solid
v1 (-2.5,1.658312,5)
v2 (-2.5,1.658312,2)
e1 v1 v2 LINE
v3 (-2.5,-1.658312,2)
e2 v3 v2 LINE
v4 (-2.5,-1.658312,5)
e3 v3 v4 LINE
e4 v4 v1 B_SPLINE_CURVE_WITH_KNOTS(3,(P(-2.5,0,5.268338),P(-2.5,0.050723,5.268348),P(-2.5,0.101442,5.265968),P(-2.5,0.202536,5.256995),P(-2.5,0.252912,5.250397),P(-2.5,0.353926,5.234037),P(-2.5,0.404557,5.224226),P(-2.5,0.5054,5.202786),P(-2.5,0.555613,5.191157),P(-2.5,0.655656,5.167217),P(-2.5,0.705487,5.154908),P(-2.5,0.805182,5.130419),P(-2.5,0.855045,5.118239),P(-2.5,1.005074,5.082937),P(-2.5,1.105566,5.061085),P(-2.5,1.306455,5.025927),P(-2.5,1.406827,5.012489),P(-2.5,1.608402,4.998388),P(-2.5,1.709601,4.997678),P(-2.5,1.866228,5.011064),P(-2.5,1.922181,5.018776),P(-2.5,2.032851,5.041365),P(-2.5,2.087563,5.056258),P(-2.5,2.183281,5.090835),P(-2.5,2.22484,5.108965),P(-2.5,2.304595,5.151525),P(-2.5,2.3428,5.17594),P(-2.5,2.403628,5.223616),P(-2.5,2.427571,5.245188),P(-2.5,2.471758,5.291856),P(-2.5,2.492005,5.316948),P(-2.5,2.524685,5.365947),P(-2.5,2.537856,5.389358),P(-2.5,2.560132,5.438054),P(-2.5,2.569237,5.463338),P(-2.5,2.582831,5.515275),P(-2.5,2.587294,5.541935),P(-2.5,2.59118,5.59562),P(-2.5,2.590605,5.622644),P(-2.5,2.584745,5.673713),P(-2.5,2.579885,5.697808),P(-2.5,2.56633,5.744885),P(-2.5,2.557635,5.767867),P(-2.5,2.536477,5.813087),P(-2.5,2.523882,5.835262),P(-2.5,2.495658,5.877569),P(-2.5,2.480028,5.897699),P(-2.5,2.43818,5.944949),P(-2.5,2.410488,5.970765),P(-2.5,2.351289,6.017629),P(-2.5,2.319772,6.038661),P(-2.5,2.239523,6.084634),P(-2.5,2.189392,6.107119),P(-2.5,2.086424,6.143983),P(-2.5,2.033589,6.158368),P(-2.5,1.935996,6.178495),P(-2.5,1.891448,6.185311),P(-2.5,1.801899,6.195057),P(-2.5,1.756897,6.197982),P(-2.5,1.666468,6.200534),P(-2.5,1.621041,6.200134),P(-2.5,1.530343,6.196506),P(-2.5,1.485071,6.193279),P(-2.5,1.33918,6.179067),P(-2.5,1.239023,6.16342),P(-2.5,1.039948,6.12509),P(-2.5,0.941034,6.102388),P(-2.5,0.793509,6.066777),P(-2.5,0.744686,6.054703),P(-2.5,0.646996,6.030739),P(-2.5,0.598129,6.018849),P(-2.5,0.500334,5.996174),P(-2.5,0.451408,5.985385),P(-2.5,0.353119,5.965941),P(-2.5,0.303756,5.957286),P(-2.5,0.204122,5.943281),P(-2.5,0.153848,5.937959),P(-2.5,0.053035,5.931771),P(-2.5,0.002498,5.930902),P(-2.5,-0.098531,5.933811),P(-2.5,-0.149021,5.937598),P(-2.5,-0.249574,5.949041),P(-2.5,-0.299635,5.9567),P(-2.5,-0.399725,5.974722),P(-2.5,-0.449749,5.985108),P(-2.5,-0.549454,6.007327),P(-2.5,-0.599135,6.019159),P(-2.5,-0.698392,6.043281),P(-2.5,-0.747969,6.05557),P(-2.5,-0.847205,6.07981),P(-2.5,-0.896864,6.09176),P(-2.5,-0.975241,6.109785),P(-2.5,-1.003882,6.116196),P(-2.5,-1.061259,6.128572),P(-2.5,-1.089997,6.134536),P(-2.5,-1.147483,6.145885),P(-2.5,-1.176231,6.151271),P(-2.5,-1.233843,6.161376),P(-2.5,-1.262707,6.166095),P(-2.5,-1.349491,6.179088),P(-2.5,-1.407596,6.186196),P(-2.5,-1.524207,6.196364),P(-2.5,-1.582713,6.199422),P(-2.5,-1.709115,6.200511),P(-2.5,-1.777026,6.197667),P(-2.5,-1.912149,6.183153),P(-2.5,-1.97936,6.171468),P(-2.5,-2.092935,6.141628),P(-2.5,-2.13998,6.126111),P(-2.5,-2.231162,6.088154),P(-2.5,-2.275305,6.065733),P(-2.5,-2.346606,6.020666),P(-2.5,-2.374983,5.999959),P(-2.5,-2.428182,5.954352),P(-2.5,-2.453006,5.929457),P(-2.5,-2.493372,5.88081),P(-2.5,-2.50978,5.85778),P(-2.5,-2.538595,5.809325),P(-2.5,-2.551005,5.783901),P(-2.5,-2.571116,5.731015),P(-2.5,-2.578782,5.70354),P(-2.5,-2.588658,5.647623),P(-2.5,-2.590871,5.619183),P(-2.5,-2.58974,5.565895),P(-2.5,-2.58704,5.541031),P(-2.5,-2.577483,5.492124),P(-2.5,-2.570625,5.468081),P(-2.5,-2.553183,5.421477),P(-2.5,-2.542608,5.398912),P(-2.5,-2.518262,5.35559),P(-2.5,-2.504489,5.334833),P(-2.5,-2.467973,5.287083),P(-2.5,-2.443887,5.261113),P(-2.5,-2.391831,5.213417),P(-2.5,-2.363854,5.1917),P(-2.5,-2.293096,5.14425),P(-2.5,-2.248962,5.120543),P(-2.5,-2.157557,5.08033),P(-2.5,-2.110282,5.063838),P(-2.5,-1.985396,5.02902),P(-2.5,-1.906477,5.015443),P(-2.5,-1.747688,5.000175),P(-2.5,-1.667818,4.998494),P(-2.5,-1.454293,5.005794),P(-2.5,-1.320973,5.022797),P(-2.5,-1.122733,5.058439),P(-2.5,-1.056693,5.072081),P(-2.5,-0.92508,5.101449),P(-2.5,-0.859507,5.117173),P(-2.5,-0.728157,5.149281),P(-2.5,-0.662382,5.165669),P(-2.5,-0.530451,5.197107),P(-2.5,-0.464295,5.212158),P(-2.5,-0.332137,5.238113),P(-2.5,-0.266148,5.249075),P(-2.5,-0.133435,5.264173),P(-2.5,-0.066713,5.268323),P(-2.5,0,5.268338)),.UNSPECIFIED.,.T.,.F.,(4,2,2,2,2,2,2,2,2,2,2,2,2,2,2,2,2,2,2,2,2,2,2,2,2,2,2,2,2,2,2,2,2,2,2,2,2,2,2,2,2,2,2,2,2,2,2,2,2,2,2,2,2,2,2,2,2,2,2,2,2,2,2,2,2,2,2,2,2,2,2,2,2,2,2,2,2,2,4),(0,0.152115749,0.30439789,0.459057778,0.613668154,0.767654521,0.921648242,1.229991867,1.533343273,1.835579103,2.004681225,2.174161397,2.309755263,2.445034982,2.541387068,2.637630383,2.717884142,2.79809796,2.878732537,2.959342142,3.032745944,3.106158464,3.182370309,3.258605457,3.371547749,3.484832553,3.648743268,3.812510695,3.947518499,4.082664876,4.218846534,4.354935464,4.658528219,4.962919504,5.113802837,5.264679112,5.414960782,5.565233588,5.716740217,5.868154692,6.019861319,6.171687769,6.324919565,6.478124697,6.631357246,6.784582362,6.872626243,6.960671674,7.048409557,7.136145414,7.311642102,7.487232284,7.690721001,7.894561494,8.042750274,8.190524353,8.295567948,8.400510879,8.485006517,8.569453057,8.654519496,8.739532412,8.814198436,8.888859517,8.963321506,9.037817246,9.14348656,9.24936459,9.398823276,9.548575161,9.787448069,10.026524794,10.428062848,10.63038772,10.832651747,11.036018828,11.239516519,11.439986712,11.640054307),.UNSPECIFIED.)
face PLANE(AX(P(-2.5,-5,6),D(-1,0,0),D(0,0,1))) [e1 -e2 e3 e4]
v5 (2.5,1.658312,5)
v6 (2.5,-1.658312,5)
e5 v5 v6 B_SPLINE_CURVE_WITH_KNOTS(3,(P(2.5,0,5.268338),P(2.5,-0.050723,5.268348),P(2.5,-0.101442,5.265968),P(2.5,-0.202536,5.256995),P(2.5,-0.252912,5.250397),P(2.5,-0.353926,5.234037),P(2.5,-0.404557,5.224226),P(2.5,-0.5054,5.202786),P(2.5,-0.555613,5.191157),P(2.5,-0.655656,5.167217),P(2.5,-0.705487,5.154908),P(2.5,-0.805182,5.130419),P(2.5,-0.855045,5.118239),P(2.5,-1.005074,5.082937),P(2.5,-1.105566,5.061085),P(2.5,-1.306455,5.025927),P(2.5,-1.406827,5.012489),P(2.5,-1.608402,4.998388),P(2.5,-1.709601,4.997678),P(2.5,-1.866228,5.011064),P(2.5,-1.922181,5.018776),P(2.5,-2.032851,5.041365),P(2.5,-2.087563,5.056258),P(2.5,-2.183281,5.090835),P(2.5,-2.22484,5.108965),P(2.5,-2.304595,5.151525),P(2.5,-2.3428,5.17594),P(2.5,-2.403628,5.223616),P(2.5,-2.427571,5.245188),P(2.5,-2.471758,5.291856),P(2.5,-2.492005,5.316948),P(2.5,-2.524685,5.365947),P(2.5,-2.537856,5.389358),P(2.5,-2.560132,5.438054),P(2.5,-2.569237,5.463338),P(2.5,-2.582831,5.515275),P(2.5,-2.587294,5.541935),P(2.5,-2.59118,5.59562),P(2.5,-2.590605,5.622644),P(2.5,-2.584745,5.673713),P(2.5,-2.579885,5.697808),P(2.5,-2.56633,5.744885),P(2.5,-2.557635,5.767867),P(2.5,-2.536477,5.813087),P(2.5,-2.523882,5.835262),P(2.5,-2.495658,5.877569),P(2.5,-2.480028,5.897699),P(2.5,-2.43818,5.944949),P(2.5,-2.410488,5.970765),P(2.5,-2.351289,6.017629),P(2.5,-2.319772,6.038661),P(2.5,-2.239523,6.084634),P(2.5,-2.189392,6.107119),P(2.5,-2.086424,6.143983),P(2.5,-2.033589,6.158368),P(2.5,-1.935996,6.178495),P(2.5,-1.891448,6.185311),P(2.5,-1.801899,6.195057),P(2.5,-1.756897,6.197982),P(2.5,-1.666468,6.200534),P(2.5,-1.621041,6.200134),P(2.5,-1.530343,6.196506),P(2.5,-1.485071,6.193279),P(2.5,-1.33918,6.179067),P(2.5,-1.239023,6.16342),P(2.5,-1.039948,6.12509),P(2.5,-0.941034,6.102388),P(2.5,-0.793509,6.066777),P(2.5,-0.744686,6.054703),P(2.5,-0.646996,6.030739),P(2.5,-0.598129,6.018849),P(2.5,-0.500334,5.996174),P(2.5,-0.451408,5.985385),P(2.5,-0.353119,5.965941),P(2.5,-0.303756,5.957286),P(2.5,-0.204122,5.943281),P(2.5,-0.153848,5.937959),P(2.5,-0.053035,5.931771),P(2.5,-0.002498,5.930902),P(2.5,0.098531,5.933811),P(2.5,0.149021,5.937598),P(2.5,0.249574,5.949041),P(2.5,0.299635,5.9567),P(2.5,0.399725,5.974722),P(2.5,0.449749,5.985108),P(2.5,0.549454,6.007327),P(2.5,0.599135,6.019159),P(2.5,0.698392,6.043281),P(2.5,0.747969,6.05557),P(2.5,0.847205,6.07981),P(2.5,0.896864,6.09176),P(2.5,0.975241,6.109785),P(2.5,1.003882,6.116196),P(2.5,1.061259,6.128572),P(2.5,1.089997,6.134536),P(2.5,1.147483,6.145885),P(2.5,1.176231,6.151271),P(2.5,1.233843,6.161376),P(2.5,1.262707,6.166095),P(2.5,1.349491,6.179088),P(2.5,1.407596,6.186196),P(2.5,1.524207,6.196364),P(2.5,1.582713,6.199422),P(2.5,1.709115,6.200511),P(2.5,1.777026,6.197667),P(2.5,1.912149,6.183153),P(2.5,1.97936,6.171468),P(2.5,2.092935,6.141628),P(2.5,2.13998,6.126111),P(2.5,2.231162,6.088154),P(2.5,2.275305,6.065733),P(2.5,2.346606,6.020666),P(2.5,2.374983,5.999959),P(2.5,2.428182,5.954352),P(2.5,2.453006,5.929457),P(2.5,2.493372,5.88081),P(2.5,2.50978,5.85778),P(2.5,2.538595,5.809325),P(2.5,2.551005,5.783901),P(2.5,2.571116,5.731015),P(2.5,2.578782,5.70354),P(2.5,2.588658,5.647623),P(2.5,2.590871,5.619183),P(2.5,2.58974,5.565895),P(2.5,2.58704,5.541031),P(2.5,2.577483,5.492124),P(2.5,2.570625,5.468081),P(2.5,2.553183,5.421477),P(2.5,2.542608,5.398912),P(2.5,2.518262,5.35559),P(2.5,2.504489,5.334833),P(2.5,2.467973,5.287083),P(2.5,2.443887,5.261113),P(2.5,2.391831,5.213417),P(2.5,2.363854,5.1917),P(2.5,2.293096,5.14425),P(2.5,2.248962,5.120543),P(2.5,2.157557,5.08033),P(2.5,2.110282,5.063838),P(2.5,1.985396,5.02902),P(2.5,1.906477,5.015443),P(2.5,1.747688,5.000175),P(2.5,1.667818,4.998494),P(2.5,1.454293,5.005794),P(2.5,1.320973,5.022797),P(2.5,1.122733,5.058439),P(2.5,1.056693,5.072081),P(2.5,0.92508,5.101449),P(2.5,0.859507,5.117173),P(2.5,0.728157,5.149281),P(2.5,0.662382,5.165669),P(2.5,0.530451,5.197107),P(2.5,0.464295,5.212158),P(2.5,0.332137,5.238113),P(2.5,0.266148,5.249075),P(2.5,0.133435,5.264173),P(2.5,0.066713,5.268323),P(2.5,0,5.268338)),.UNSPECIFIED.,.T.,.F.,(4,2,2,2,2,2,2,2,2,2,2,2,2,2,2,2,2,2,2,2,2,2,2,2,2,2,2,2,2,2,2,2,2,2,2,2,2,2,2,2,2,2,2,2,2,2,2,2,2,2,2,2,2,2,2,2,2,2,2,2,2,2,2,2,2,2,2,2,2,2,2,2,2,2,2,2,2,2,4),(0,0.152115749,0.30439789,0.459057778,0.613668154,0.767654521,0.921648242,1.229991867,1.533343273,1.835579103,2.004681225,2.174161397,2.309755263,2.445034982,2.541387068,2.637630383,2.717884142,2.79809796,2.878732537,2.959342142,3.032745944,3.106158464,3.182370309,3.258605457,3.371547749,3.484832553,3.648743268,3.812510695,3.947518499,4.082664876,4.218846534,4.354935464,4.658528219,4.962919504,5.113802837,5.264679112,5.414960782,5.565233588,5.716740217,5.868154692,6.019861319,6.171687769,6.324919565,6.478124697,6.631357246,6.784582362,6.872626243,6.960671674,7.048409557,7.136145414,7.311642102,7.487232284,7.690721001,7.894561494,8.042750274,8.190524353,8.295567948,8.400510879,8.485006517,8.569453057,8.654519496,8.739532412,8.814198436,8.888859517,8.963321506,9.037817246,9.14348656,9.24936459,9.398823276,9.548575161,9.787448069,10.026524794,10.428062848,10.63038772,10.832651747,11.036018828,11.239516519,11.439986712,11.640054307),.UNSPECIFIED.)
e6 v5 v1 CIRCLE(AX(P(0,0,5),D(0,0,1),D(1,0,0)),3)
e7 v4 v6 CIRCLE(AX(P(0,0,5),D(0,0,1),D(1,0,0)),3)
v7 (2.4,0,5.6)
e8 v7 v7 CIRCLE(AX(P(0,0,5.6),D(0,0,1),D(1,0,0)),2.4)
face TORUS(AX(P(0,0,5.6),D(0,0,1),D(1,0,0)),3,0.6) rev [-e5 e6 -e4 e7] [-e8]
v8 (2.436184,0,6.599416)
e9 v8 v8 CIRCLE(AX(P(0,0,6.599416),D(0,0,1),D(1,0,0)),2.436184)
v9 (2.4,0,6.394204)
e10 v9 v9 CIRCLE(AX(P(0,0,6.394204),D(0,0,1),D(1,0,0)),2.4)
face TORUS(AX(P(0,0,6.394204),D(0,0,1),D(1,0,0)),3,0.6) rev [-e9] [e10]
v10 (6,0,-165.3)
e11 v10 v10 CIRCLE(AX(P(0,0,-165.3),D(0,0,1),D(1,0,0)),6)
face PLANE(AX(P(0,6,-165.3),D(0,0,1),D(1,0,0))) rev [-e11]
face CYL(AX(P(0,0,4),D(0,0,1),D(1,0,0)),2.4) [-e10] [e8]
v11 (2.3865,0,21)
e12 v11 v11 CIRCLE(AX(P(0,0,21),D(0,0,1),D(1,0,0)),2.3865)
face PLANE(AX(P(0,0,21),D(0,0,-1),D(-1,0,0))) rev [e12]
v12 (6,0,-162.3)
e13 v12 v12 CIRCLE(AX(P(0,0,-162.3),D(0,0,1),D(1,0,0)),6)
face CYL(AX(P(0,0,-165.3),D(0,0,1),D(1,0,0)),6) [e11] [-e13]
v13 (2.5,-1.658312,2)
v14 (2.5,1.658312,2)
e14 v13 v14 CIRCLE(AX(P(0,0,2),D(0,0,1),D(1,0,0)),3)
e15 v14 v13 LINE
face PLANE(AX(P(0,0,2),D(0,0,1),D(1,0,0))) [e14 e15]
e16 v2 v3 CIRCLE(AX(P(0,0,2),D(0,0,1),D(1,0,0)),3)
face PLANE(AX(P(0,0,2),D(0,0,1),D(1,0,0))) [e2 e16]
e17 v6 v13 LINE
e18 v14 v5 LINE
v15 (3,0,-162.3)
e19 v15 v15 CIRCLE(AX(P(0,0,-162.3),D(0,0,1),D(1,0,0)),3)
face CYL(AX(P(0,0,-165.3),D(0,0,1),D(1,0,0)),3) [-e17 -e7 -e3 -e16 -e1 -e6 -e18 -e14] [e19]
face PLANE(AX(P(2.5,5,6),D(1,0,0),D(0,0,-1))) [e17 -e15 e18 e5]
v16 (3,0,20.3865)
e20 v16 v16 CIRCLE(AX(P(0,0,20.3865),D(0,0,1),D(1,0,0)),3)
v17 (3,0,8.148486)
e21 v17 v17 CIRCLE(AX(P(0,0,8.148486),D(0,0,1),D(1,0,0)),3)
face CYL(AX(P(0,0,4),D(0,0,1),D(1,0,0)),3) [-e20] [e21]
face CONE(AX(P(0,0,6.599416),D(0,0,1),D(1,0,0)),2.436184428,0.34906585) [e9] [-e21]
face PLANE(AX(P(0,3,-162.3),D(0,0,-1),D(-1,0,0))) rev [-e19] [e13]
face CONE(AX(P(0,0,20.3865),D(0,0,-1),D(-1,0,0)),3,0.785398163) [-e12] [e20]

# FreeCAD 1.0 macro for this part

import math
import FreeCAD as App
import Part
import Sketcher
Q = App.Units.Quantity


def add_polygon(sketch, points):
    """Adds a closed chain of lines whose ends are joined by coincident constraints."""
    first, n = sketch.GeometryCount, len(points)
    for a, b in zip(points, points[1:] + points[:1]):
        sketch.addGeometry(Part.LineSegment(App.Vector(*a, 0), App.Vector(*b, 0)), False)
    for i in range(n):
        sketch.addConstraint(Sketcher.Constraint("Coincident", first + i, 2, first + (i + 1) % n, 1))

doc = App.newDocument("Part")
body = doc.addObject("PartDesign::Body", "Body")

sketch1 = body.newObject("Sketcher::SketchObject", "Sketch")
sketch1.AttachmentSupport = (doc.getObject("YZ_Plane"), [""])
sketch1.MapMode = "FlatFace"
add_polygon(sketch1, [(3, 5), (0, 5), (0, -165.3), (6, -165.3), (6, -162.3), (3, -162.3)])
sketch1.addConstraint([
    Sketcher.Constraint("Horizontal", 0),
    Sketcher.Constraint("Vertical", 1),
    Sketcher.Constraint("Horizontal", 2),
    Sketcher.Constraint("Vertical", 3),
    Sketcher.Constraint("Horizontal", 4),
    Sketcher.Constraint("Vertical", 5),
    Sketcher.Constraint("PointOnObject", 0, 2, -2),
    Sketcher.Constraint("Equal", 0, 4),
    Sketcher.Constraint("Equal", 4, 3),
    Sketcher.Constraint("DistanceX", 0, 2, 0, 1, Q("3 mm")),
    Sketcher.Constraint("DistanceY", 1, 2, 1, 1, Q("170.3 mm")),
    Sketcher.Constraint("DistanceY", -1, 1, 0, 2, Q("5 mm")),
])
revolution = body.newObject("PartDesign::Revolution", "Revolution")
revolution.Profile = sketch1
revolution.ReferenceAxis = (sketch1, ["V_Axis"])
revolution.Angle = 360

sketch2 = body.newObject("Sketcher::SketchObject", "Sketch001")
sketch2.AttachmentSupport = (doc.getObject("YZ_Plane"), [""])
sketch2.MapMode = "FlatFace"
sketch2.addGeometry([
    Part.LineSegment(App.Vector(2.3865, 21, 0), App.Vector(0, 21, 0)),
    Part.LineSegment(App.Vector(0, 21, 0), App.Vector(0, 4, 0)),
    Part.LineSegment(App.Vector(0, 4, 0), App.Vector(3, 4, 0)),
    Part.LineSegment(App.Vector(3, 4, 0), App.Vector(3, 5, 0)),
    Part.ArcOfCircle(Part.Circle(App.Vector(3, 5.6, 0), App.Vector(0, 0, 1), 0.6), math.radians(180), math.radians(270)),
    Part.LineSegment(App.Vector(2.4, 5.6, 0), App.Vector(2.4, 6.394204, 0)),
    Part.ArcOfCircle(Part.Circle(App.Vector(3, 6.394204, 0), App.Vector(0, 0, 1), 0.6), math.radians(160), math.radians(180)),
    Part.LineSegment(App.Vector(2.436184, 6.599416, 0), App.Vector(3, 8.148486, 0)),
    Part.LineSegment(App.Vector(3, 8.148486, 0), App.Vector(3, 20.3865, 0)),
    Part.LineSegment(App.Vector(3, 20.3865, 0), App.Vector(2.3865, 21, 0)),
], False)
sketch2.addConstraint([
    Sketcher.Constraint("Coincident", 0, 2, 1, 1),
    Sketcher.Constraint("Coincident", 1, 2, 2, 1),
    Sketcher.Constraint("Coincident", 2, 2, 3, 1),
    Sketcher.Constraint("Coincident", 3, 2, 4, 2),
    Sketcher.Constraint("Tangent", 4, 1, 5, 1),
    Sketcher.Constraint("Tangent", 5, 2, 6, 2),
    Sketcher.Constraint("Tangent", 6, 1, 7, 1),
    Sketcher.Constraint("Coincident", 7, 2, 8, 1),
    Sketcher.Constraint("Coincident", 8, 2, 9, 1),
    Sketcher.Constraint("Coincident", 9, 2, 0, 1),
    Sketcher.Constraint("Horizontal", 0),
    Sketcher.Constraint("Vertical", 1),
    Sketcher.Constraint("Horizontal", 2),
    Sketcher.Constraint("Vertical", 3),
    Sketcher.Constraint("Vertical", 5),
    Sketcher.Constraint("Vertical", 8),
    Sketcher.Constraint("Equal", 4, 6),
    Sketcher.Constraint("PointOnObject", 0, 2, -2),
    Sketcher.Constraint("Vertical", 6, 3, 2, 2),
    Sketcher.Constraint("Vertical", 3, 2, 7, 2),
    Sketcher.Constraint("Radius", 4, Q("0.6 mm")),
    Sketcher.Constraint("DistanceX", 2, 1, 2, 2, Q("3 mm")),
    Sketcher.Constraint("DistanceY", 1, 2, 1, 1, Q("17 mm")),
    Sketcher.Constraint("DistanceY", 3, 1, 3, 2, Q("1 mm")),
    Sketcher.Constraint("Angle", 7, Q("70 deg")),
    Sketcher.Constraint("Angle", 9, Q("135 deg")),
    Sketcher.Constraint("DistanceY", -1, 1, 0, 2, Q("21 mm")),
    Sketcher.Constraint("DistanceX", 0, 2, 0, 1, Q("2.3865 mm")),
    Sketcher.Constraint("DistanceY", 5, 1, 5, 2, Q("0.794204 mm")),
])
revolution2 = body.newObject("PartDesign::Revolution", "Revolution001")
revolution2.Profile = sketch2
revolution2.ReferenceAxis = (sketch2, ["V_Axis"])
revolution2.Angle = 360

sketch3 = body.newObject("Sketcher::SketchObject", "Sketch002")
sketch3.AttachmentSupport = (doc.getObject("XY_Plane"), [""])
sketch3.MapMode = "FlatFace"
sketch3.AttachmentOffset = App.Placement(App.Vector(0, 0, 2), App.Rotation())
add_polygon(sketch3, [(-5, 10), (-5, -5), (-2.5, -5), (-2.5, 5), (2.5, 5), (2.5, -5), (5, -5), (5, 10)])
sketch3.addConstraint([
    Sketcher.Constraint("Vertical", 0),
    Sketcher.Constraint("Horizontal", 1),
    Sketcher.Constraint("Vertical", 2),
    Sketcher.Constraint("Horizontal", 3),
    Sketcher.Constraint("Vertical", 4),
    Sketcher.Constraint("Horizontal", 5),
    Sketcher.Constraint("Vertical", 6),
    Sketcher.Constraint("Horizontal", 7),
    Sketcher.Constraint("Symmetric", 1, 2, 3, 2, -1, 1),
    Sketcher.Constraint("Symmetric", 0, 2, 5, 2, -2),
    Sketcher.Constraint("Equal", 7, 2),
    Sketcher.Constraint("DistanceX", 3, 1, 3, 2, Q("5 mm")),
    Sketcher.Constraint("DistanceX", 7, 2, 7, 1, Q("10 mm")),
    Sketcher.Constraint("DistanceY", 0, 2, 0, 1, Q("15 mm")),
])
pocket1 = body.newObject("PartDesign::Pocket", "Pocket")
pocket1.Profile = sketch3
pocket1.Length = 4
pocket1.Reversed = True

doc.recompute()
